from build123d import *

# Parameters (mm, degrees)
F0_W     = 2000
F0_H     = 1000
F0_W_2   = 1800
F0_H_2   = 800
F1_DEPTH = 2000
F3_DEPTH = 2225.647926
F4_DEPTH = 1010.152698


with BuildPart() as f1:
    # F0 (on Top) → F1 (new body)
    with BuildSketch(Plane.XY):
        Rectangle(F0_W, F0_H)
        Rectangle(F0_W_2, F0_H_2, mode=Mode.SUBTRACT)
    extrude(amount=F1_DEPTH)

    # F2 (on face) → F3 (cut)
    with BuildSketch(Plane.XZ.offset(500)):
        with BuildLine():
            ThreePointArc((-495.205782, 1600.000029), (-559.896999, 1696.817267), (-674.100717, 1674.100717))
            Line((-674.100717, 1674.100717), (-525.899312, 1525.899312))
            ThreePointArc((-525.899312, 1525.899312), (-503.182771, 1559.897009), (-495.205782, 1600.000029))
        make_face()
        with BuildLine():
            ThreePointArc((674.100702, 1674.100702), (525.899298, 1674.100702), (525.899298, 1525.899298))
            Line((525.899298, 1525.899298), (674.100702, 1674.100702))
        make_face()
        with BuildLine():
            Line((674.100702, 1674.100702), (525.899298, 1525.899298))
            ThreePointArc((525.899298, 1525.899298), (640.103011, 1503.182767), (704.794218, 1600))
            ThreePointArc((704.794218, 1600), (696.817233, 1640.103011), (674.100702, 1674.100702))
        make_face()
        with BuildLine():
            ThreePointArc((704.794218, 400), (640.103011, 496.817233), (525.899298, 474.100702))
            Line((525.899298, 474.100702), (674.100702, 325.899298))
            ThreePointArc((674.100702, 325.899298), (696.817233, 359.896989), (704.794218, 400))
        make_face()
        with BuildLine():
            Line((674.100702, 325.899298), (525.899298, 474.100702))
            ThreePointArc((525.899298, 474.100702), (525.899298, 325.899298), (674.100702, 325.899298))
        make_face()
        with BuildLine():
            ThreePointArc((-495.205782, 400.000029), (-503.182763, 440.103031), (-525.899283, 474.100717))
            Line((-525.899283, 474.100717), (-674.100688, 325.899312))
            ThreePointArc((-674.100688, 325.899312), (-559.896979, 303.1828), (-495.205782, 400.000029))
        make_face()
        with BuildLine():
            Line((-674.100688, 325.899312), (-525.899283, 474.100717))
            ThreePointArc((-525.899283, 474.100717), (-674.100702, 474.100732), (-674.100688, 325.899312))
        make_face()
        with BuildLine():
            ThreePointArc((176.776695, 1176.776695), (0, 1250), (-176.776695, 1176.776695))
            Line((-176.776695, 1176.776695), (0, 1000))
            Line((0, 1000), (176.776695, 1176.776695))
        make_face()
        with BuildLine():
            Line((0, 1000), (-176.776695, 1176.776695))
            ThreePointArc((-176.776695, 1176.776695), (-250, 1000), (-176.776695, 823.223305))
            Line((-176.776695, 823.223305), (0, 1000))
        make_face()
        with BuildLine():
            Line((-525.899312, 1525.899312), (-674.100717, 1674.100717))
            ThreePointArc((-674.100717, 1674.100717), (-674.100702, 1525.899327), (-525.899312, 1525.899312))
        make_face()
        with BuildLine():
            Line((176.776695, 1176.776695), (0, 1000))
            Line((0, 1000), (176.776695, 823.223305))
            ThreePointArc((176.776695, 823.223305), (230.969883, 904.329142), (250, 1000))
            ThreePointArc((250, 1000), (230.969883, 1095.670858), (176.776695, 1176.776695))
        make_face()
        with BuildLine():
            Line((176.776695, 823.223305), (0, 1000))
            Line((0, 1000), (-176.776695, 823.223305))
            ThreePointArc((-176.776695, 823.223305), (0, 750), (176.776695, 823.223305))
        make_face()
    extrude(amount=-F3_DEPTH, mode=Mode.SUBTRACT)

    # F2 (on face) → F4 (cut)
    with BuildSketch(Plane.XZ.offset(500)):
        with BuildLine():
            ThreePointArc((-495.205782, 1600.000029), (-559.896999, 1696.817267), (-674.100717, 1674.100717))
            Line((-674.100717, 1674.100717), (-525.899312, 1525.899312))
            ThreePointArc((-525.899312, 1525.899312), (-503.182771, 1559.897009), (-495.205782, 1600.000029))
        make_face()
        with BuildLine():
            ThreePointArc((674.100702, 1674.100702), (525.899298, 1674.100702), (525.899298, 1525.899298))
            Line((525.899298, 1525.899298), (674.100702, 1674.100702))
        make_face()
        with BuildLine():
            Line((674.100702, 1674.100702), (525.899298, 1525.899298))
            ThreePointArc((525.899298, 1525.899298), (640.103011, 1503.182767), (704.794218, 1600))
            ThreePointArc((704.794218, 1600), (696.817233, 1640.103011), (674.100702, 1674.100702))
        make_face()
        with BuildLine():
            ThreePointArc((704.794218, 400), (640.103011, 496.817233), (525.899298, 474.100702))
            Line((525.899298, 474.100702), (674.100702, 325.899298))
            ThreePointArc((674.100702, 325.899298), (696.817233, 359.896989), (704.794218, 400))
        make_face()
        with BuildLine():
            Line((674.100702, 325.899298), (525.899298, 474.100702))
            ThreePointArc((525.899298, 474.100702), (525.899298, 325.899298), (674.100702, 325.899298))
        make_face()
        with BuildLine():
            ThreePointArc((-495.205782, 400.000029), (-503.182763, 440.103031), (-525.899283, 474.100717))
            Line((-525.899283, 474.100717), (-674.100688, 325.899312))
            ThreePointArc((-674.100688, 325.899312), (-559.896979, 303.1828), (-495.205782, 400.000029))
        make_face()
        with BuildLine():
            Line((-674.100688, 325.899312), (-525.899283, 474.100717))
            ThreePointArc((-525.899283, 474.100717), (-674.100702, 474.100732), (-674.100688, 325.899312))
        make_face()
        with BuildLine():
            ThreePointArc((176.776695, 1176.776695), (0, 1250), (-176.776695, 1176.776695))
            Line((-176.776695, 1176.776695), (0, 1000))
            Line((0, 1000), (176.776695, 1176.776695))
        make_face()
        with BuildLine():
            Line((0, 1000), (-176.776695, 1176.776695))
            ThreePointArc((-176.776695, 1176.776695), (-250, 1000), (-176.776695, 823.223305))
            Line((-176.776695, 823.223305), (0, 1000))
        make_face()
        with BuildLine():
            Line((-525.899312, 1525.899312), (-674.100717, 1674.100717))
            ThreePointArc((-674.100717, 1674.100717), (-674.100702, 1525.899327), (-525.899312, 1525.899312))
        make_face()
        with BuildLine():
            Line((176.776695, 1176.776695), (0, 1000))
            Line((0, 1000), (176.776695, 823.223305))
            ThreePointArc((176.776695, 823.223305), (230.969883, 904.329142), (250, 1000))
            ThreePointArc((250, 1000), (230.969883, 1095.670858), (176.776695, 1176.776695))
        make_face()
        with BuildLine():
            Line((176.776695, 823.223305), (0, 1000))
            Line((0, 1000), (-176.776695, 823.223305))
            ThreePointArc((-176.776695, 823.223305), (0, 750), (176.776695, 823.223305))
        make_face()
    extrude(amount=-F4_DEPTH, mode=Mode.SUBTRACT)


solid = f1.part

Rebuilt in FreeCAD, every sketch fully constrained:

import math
import FreeCAD as App
import Part
import Sketcher
from FreeCAD import Vector
Q = App.Units.Quantity

doc = App.newDocument("Part")
body = doc.addObject("PartDesign::Body", "Body")

sketch1 = body.newObject("Sketcher::SketchObject", "Sketch")
sketch1.AttachmentSupport = (doc.getObject("XY_Plane"), [""])
sketch1.MapMode = "FlatFace"
sketch1.addGeometry(Part.LineSegment(Vector(-1000, 500, 0), Vector(-1000, -500, 0)), False)
sketch1.addGeometry(Part.LineSegment(Vector(-1000, -500, 0), Vector(1000, -500, 0)), False)
sketch1.addGeometry(Part.LineSegment(Vector(1000, -500, 0), Vector(1000, 500, 0)), False)
sketch1.addGeometry(Part.LineSegment(Vector(1000, 500, 0), Vector(-1000, 500, 0)), False)
sketch1.addGeometry(Part.LineSegment(Vector(900, -400, 0), Vector(-900, -400, 0)), False)
sketch1.addGeometry(Part.LineSegment(Vector(-900, -400, 0), Vector(-900, 400, 0)), False)
sketch1.addGeometry(Part.LineSegment(Vector(-900, 400, 0), Vector(900, 400, 0)), False)
sketch1.addGeometry(Part.LineSegment(Vector(900, 400, 0), Vector(900, -400, 0)), False)
sketch1.addConstraint(Sketcher.Constraint("Coincident", 0, 2, 1, 1))
sketch1.addConstraint(Sketcher.Constraint("Coincident", 1, 2, 2, 1))
sketch1.addConstraint(Sketcher.Constraint("Coincident", 2, 2, 3, 1))
sketch1.addConstraint(Sketcher.Constraint("Coincident", 3, 2, 0, 1))
sketch1.addConstraint(Sketcher.Constraint("Coincident", 4, 2, 5, 1))
sketch1.addConstraint(Sketcher.Constraint("Coincident", 5, 2, 6, 1))
sketch1.addConstraint(Sketcher.Constraint("Coincident", 6, 2, 7, 1))
sketch1.addConstraint(Sketcher.Constraint("Coincident", 7, 2, 4, 1))
sketch1.addConstraint(Sketcher.Constraint("Vertical", 0))
sketch1.addConstraint(Sketcher.Constraint("Horizontal", 1))
sketch1.addConstraint(Sketcher.Constraint("Vertical", 2))
sketch1.addConstraint(Sketcher.Constraint("Horizontal", 3))
sketch1.addConstraint(Sketcher.Constraint("Horizontal", 4))
sketch1.addConstraint(Sketcher.Constraint("Vertical", 5))
sketch1.addConstraint(Sketcher.Constraint("Horizontal", 6))
sketch1.addConstraint(Sketcher.Constraint("Vertical", 7))
sketch1.addConstraint(Sketcher.Constraint("Symmetric", 0, 2, 2, 2, -1, 1))
sketch1.addConstraint(Sketcher.Constraint("Symmetric", 4, 2, 6, 2, -1, 1))
sketch1.addConstraint(Sketcher.Constraint("DistanceX", 1, 1, 1, 2, Q("2000 mm")))
sketch1.addConstraint(Sketcher.Constraint("DistanceX", 4, 2, 4, 1, Q("1800 mm")))
sketch1.addConstraint(Sketcher.Constraint("DistanceY", 0, 2, 0, 1, Q("1000 mm")))
sketch1.addConstraint(Sketcher.Constraint("DistanceY", 5, 1, 5, 2, Q("800 mm")))
pad1 = body.newObject("PartDesign::Pad", "Pad")
pad1.Profile = sketch1
pad1.Length = 2000

sketch2 = body.newObject("Sketcher::SketchObject", "Sketch001")
sketch2.AttachmentSupport = (doc.getObject("XZ_Plane"), [""])
sketch2.MapMode = "FlatFace"
sketch2.AttachmentOffset = App.Placement(Vector(0, 0, 500), App.Rotation())
sketch2.addGeometry(Part.ArcOfCircle(Part.Circle(Vector(-600, 1600, 0), Vector(0, 0, 1), 105), math.radians(0), math.radians(135)), False)
sketch2.addGeometry(Part.ArcOfCircle(Part.Circle(Vector(-600, 1600, 0), Vector(0, 0, 1), 105), math.radians(135), math.radians(315)), False)
sketch2.addGeometry(Part.ArcOfCircle(Part.Circle(Vector(-600, 1600, 0), Vector(0, 0, 1), 105), math.radians(-45), math.radians(0)), False)
sketch2.addGeometry(Part.ArcOfCircle(Part.Circle(Vector(600, 1600, 0), Vector(0, 0, 1), 105), math.radians(45), math.radians(225)), False)
sketch2.addGeometry(Part.ArcOfCircle(Part.Circle(Vector(600, 1600, 0), Vector(0, 0, 1), 105), math.radians(-135), math.radians(0)), False)
sketch2.addGeometry(Part.ArcOfCircle(Part.Circle(Vector(600, 1600, 0), Vector(0, 0, 1), 105), math.radians(0), math.radians(45)), False)
sketch2.addGeometry(Part.ArcOfCircle(Part.Circle(Vector(600, 400, 0), Vector(0, 0, 1), 105), math.radians(0), math.radians(135)), False)
sketch2.addGeometry(Part.ArcOfCircle(Part.Circle(Vector(600, 400, 0), Vector(0, 0, 1), 105), math.radians(135), math.radians(315)), False)
sketch2.addGeometry(Part.ArcOfCircle(Part.Circle(Vector(600, 400, 0), Vector(0, 0, 1), 105), math.radians(-45), math.radians(0)), False)
sketch2.addGeometry(Part.ArcOfCircle(Part.Circle(Vector(-600, 400, 0), Vector(0, 0, 1), 105), math.radians(0), math.radians(45)), False)
sketch2.addGeometry(Part.ArcOfCircle(Part.Circle(Vector(-600, 400, 0), Vector(0, 0, 1), 105), math.radians(45), math.radians(225)), False)
sketch2.addGeometry(Part.ArcOfCircle(Part.Circle(Vector(-600, 400, 0), Vector(0, 0, 1), 105), math.radians(-135), math.radians(0)), False)
sketch2.addGeometry(Part.ArcOfCircle(Part.Circle(Vector(0, 1000, 0), Vector(0, 0, 1), 250), math.radians(45), math.radians(135)), False)
sketch2.addGeometry(Part.ArcOfCircle(Part.Circle(Vector(0, 1000, 0), Vector(0, 0, 1), 250), math.radians(135), math.radians(225)), False)
sketch2.addGeometry(Part.ArcOfCircle(Part.Circle(Vector(0, 1000, 0), Vector(0, 0, 1), 250), math.radians(-135), math.radians(-45)), False)
sketch2.addGeometry(Part.ArcOfCircle(Part.Circle(Vector(0, 1000, 0), Vector(0, 0, 1), 250), math.radians(-45), math.radians(0)), False)
sketch2.addGeometry(Part.ArcOfCircle(Part.Circle(Vector(0, 1000, 0), Vector(0, 0, 1), 250), math.radians(0), math.radians(45)), False)
sketch2.addConstraint(Sketcher.Constraint("Tangent", 0, 2, 1, 1))
sketch2.addConstraint(Sketcher.Constraint("Tangent", 1, 2, 2, 1))
sketch2.addConstraint(Sketcher.Constraint("Tangent", 2, 2, 0, 1))
sketch2.addConstraint(Sketcher.Constraint("Tangent", 3, 2, 4, 1))
sketch2.addConstraint(Sketcher.Constraint("Tangent", 4, 2, 5, 1))
sketch2.addConstraint(Sketcher.Constraint("Tangent", 5, 2, 3, 1))
sketch2.addConstraint(Sketcher.Constraint("Tangent", 6, 2, 7, 1))
sketch2.addConstraint(Sketcher.Constraint("Tangent", 7, 2, 8, 1))
sketch2.addConstraint(Sketcher.Constraint("Tangent", 8, 2, 6, 1))
sketch2.addConstraint(Sketcher.Constraint("Tangent", 9, 2, 10, 1))
sketch2.addConstraint(Sketcher.Constraint("Tangent", 10, 2, 11, 1))
sketch2.addConstraint(Sketcher.Constraint("Tangent", 11, 2, 9, 1))
sketch2.addConstraint(Sketcher.Constraint("Tangent", 12, 2, 13, 1))
sketch2.addConstraint(Sketcher.Constraint("Tangent", 13, 2, 14, 1))
sketch2.addConstraint(Sketcher.Constraint("Tangent", 14, 2, 15, 1))
sketch2.addConstraint(Sketcher.Constraint("Tangent", 15, 2, 16, 1))
sketch2.addConstraint(Sketcher.Constraint("Tangent", 16, 2, 12, 1))
sketch2.addConstraint(Sketcher.Constraint("Coincident", 14, 3, 12, 3))
sketch2.addConstraint(Sketcher.Constraint("Equal", 1, 3))
sketch2.addConstraint(Sketcher.Constraint("Equal", 5, 6))
sketch2.addConstraint(Sketcher.Constraint("Equal", 8, 9))
sketch2.addConstraint(Sketcher.Constraint("Symmetric", 13, 2, 14, 2, -2))
sketch2.addConstraint(Sketcher.Constraint("Horizontal", 1, 3, 2, 2))
sketch2.addConstraint(Sketcher.Constraint("Horizontal", 5, 3, 4, 2))
sketch2.addConstraint(Sketcher.Constraint("Horizontal", 7, 3, 8, 2))
sketch2.addConstraint(Sketcher.Constraint("Horizontal", 10, 3, 11, 2))
sketch2.addConstraint(Sketcher.Constraint("Horizontal", 16, 3, 15, 2))
sketch2.addConstraint(Sketcher.Constraint("Horizontal", 12, 2, 16, 2))
sketch2.addConstraint(Sketcher.Constraint("Vertical", 5, 3, 6, 3))
sketch2.addConstraint(Sketcher.Constraint("Vertical", 0, 3, 9, 3))
sketch2.addConstraint(Sketcher.Constraint("Vertical", 3, 2, 6, 2))
sketch2.addConstraint(Sketcher.Constraint("Vertical", 5, 2, 7, 2))
sketch2.addConstraint(Sketcher.Constraint("Vertical", 12, 2, 13, 2))
sketch2.addConstraint(Sketcher.Constraint("Radius", 12, Q("249.999999 mm")))
sketch2.addConstraint(Sketcher.Constraint("DistanceX", 0, 3, -1, 1, Q("600 mm")))
sketch2.addConstraint(Sketcher.Constraint("DistanceX", -1, 1, 3, 3, Q("600 mm")))
sketch2.addConstraint(Sketcher.Constraint("DistanceY", -1, 1, 3, 3, Q("1600 mm")))
sketch2.addConstraint(Sketcher.Constraint("DistanceY", -1, 1, 6, 3, Q("400 mm")))
sketch2.addConstraint(Sketcher.Constraint("DistanceY", -1, 1, 12, 3, Q("1000.000001 mm")))
sketch2.addConstraint(Sketcher.Constraint("DistanceY", 9, 3, 1, 3, Q("1200.000001 mm")))
sketch2.addConstraint(Sketcher.Constraint("Radius", 1, Q("104.794218 mm")))
sketch2.addConstraint(Sketcher.Constraint("DistanceX", 3, 2, 5, 3, Q("74.100702 mm")))
sketch2.addConstraint(Sketcher.Constraint("DistanceX", 4, 3, 5, 2, Q("74.100702 mm")))
sketch2.addConstraint(Sketcher.Constraint("DistanceX", 9, 2, 11, 2, Q("30.693501 mm")))
sketch2.addConstraint(Sketcher.Constraint("DistanceY", -1, 1, 0, 3, Q("1600.00003 mm")))
sketch2.addConstraint(Sketcher.Constraint("DistanceX", 1, 2, -1, 1, Q("525.899312 mm")))
sketch2.addConstraint(Sketcher.Constraint("DistanceX", 10, 2, -1, 1, Q("674.100688 mm")))
sketch2.addConstraint(Sketcher.Constraint("DistanceX", 0, 2, 2, 3, Q("74.100709 mm")))
sketch2.addConstraint(Sketcher.Constraint("DistanceX", 12, 2, -1, 1, Q("176.776695 mm")))
pocket1 = body.newObject("PartDesign::Pocket", "Pocket")
pocket1.Profile = sketch2
pocket1.Length = 2225.647926

sketch3 = body.newObject("Sketcher::SketchObject", "Sketch002")
sketch3.AttachmentSupport = (doc.getObject("XZ_Plane"), [""])
sketch3.MapMode = "FlatFace"
sketch3.AttachmentOffset = App.Placement(Vector(0, 0, 500), App.Rotation())
sketch3.addGeometry(Part.ArcOfCircle(Part.Circle(Vector(-600, 1600, 0), Vector(0, 0, 1), 105), math.radians(0), math.radians(135)), False)
sketch3.addGeometry(Part.ArcOfCircle(Part.Circle(Vector(-600, 1600, 0), Vector(0, 0, 1), 105), math.radians(135), math.radians(315)), False)
sketch3.addGeometry(Part.ArcOfCircle(Part.Circle(Vector(-600, 1600, 0), Vector(0, 0, 1), 105), math.radians(-45), math.radians(0)), False)
sketch3.addGeometry(Part.ArcOfCircle(Part.Circle(Vector(600, 1600, 0), Vector(0, 0, 1), 105), math.radians(45), math.radians(225)), False)
sketch3.addGeometry(Part.ArcOfCircle(Part.Circle(Vector(600, 1600, 0), Vector(0, 0, 1), 105), math.radians(-135), math.radians(0)), False)
sketch3.addGeometry(Part.ArcOfCircle(Part.Circle(Vector(600, 1600, 0), Vector(0, 0, 1), 105), math.radians(0), math.radians(45)), False)
sketch3.addGeometry(Part.ArcOfCircle(Part.Circle(Vector(600, 400, 0), Vector(0, 0, 1), 105), math.radians(0), math.radians(135)), False)
sketch3.addGeometry(Part.ArcOfCircle(Part.Circle(Vector(600, 400, 0), Vector(0, 0, 1), 105), math.radians(135), math.radians(315)), False)
sketch3.addGeometry(Part.ArcOfCircle(Part.Circle(Vector(600, 400, 0), Vector(0, 0, 1), 105), math.radians(-45), math.radians(0)), False)
sketch3.addGeometry(Part.ArcOfCircle(Part.Circle(Vector(-600, 400, 0), Vector(0, 0, 1), 105), math.radians(0), math.radians(45)), False)
sketch3.addGeometry(Part.ArcOfCircle(Part.Circle(Vector(-600, 400, 0), Vector(0, 0, 1), 105), math.radians(45), math.radians(225)), False)
sketch3.addGeometry(Part.ArcOfCircle(Part.Circle(Vector(-600, 400, 0), Vector(0, 0, 1), 105), math.radians(-135), math.radians(0)), False)
sketch3.addGeometry(Part.ArcOfCircle(Part.Circle(Vector(0, 1000, 0), Vector(0, 0, 1), 250), math.radians(45), math.radians(135)), False)
sketch3.addGeometry(Part.ArcOfCircle(Part.Circle(Vector(0, 1000, 0), Vector(0, 0, 1), 250), math.radians(135), math.radians(225)), False)
sketch3.addGeometry(Part.ArcOfCircle(Part.Circle(Vector(0, 1000, 0), Vector(0, 0, 1), 250), math.radians(-135), math.radians(-45)), False)
sketch3.addGeometry(Part.ArcOfCircle(Part.Circle(Vector(0, 1000, 0), Vector(0, 0, 1), 250), math.radians(-45), math.radians(0)), False)
sketch3.addGeometry(Part.ArcOfCircle(Part.Circle(Vector(0, 1000, 0), Vector(0, 0, 1), 250), math.radians(0), math.radians(45)), False)
sketch3.addConstraint(Sketcher.Constraint("Tangent", 0, 2, 1, 1))
sketch3.addConstraint(Sketcher.Constraint("Tangent", 1, 2, 2, 1))
sketch3.addConstraint(Sketcher.Constraint("Tangent", 2, 2, 0, 1))
sketch3.addConstraint(Sketcher.Constraint("Tangent", 3, 2, 4, 1))
sketch3.addConstraint(Sketcher.Constraint("Tangent", 4, 2, 5, 1))
sketch3.addConstraint(Sketcher.Constraint("Tangent", 5, 2, 3, 1))
sketch3.addConstraint(Sketcher.Constraint("Tangent", 6, 2, 7, 1))
sketch3.addConstraint(Sketcher.Constraint("Tangent", 7, 2, 8, 1))
sketch3.addConstraint(Sketcher.Constraint("Tangent", 8, 2, 6, 1))
sketch3.addConstraint(Sketcher.Constraint("Tangent", 9, 2, 10, 1))
sketch3.addConstraint(Sketcher.Constraint("Tangent", 10, 2, 11, 1))
sketch3.addConstraint(Sketcher.Constraint("Tangent", 11, 2, 9, 1))
sketch3.addConstraint(Sketcher.Constraint("Tangent", 12, 2, 13, 1))
sketch3.addConstraint(Sketcher.Constraint("Tangent", 13, 2, 14, 1))
sketch3.addConstraint(Sketcher.Constraint("Tangent", 14, 2, 15, 1))
sketch3.addConstraint(Sketcher.Constraint("Tangent", 15, 2, 16, 1))
sketch3.addConstraint(Sketcher.Constraint("Tangent", 16, 2, 12, 1))
sketch3.addConstraint(Sketcher.Constraint("Coincident", 14, 3, 12, 3))
sketch3.addConstraint(Sketcher.Constraint("Equal", 1, 3))
sketch3.addConstraint(Sketcher.Constraint("Equal", 5, 6))
sketch3.addConstraint(Sketcher.Constraint("Equal", 8, 9))
sketch3.addConstraint(Sketcher.Constraint("Symmetric", 13, 2, 14, 2, -2))
sketch3.addConstraint(Sketcher.Constraint("Horizontal", 1, 3, 2, 2))
sketch3.addConstraint(Sketcher.Constraint("Horizontal", 5, 3, 4, 2))
sketch3.addConstraint(Sketcher.Constraint("Horizontal", 7, 3, 8, 2))
sketch3.addConstraint(Sketcher.Constraint("Horizontal", 10, 3, 11, 2))
sketch3.addConstraint(Sketcher.Constraint("Horizontal", 16, 3, 15, 2))
sketch3.addConstraint(Sketcher.Constraint("Horizontal", 12, 2, 16, 2))
sketch3.addConstraint(Sketcher.Constraint("Vertical", 5, 3, 6, 3))
sketch3.addConstraint(Sketcher.Constraint("Vertical", 0, 3, 9, 3))
sketch3.addConstraint(Sketcher.Constraint("Vertical", 3, 2, 6, 2))
sketch3.addConstraint(Sketcher.Constraint("Vertical", 5, 2, 7, 2))
sketch3.addConstraint(Sketcher.Constraint("Vertical", 12, 2, 13, 2))
sketch3.addConstraint(Sketcher.Constraint("Radius", 12, Q("249.999999 mm")))
sketch3.addConstraint(Sketcher.Constraint("DistanceX", 0, 3, -1, 1, Q("600 mm")))
sketch3.addConstraint(Sketcher.Constraint("DistanceX", -1, 1, 3, 3, Q("600 mm")))
sketch3.addConstraint(Sketcher.Constraint("DistanceY", -1, 1, 3, 3, Q("1600 mm")))
sketch3.addConstraint(Sketcher.Constraint("DistanceY", -1, 1, 6, 3, Q("400 mm")))
sketch3.addConstraint(Sketcher.Constraint("DistanceY", -1, 1, 12, 3, Q("1000.000001 mm")))
sketch3.addConstraint(Sketcher.Constraint("DistanceY", 9, 3, 1, 3, Q("1200.000001 mm")))
sketch3.addConstraint(Sketcher.Constraint("Radius", 1, Q("104.794218 mm")))
sketch3.addConstraint(Sketcher.Constraint("DistanceX", 3, 2, 5, 3, Q("74.100702 mm")))
sketch3.addConstraint(Sketcher.Constraint("DistanceX", 4, 3, 5, 2, Q("74.100702 mm")))
sketch3.addConstraint(Sketcher.Constraint("DistanceX", 9, 2, 11, 2, Q("30.693501 mm")))
sketch3.addConstraint(Sketcher.Constraint("DistanceY", -1, 1, 0, 3, Q("1600.00003 mm")))
sketch3.addConstraint(Sketcher.Constraint("DistanceX", 1, 2, -1, 1, Q("525.899312 mm")))
sketch3.addConstraint(Sketcher.Constraint("DistanceX", 10, 2, -1, 1, Q("674.100688 mm")))
sketch3.addConstraint(Sketcher.Constraint("DistanceX", 0, 2, 2, 3, Q("74.100709 mm")))
sketch3.addConstraint(Sketcher.Constraint("DistanceX", 12, 2, -1, 1, Q("176.776695 mm")))
pocket2 = body.newObject("PartDesign::Pocket", "Pocket001")
pocket2.Profile = sketch3
pocket2.Length = 1010.152698

doc.recompute()
